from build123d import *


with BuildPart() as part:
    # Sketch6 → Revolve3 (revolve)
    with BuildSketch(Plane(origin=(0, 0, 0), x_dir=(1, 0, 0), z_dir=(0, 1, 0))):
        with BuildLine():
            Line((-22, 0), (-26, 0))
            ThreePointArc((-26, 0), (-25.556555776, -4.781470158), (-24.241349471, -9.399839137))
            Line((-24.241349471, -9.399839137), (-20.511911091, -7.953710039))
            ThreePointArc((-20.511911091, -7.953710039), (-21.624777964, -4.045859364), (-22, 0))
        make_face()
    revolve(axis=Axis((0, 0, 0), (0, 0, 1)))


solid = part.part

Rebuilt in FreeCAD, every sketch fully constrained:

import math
import FreeCAD as App
import Part
import Sketcher

V = App.Vector
Q = App.Units.Quantity

doc = App.newDocument("Part")
params = doc.addObject("Spreadsheet::Sheet", "Params")
for row, (alias, value) in enumerate([
    ("sketch1_radius", "26 mm"),
    ("sketch1_radius2", "22 mm"),
    ("revolution_angle", "360 deg"),
], start=1):
    params.set(f"A{row}", alias)
    params.set(f"B{row}", "=" + value)
    params.setAlias(f"B{row}", alias)

body = doc.addObject("PartDesign::Body", "Body")

# Sketch on XZ plane
sketch1 = body.newObject("Sketcher::SketchObject", "Sketch")
sketch1.AttachmentSupport = (doc.getObject("XZ_Plane"), [""])
sketch1.MapMode = "FlatFace"
sketch1.addGeometry(Part.LineSegment(V(-22, 0, 0), V(-26, 0, 0)), False)
sketch1.addGeometry(Part.ArcOfCircle(Part.Circle(V(0, 0, 0), V(0, 0, 1), 26), math.radians(159), math.radians(180)), False)
sketch1.addGeometry(Part.LineSegment(V(-24.2, 9.4, 0), V(-20.5, 8, 0)), False)
sketch1.addGeometry(Part.ArcOfCircle(Part.Circle(V(0, 0, 0), V(0, 0, 1), 22), math.radians(159), math.radians(180)), False)
sketch1.addConstraint(Sketcher.Constraint("Coincident", 0, 2, 1, 2))
sketch1.addConstraint(Sketcher.Constraint("Coincident", 1, 1, 2, 1))
sketch1.addConstraint(Sketcher.Constraint("Coincident", 2, 2, 3, 1))
sketch1.addConstraint(Sketcher.Constraint("Coincident", 3, 2, 0, 1))
sketch1.addConstraint(Sketcher.Constraint("Horizontal", 0))
sketch1.addConstraint(Sketcher.Constraint("Coincident", 1, 3, -1, 1))
sketch1.addConstraint(Sketcher.Constraint("Coincident", 3, 3, -1, 1))
sketch1.addConstraint(Sketcher.Constraint("PointOnObject", 0, 2, -1))
sketch1.addConstraint(Sketcher.Constraint("Radius", 1, Q("26 mm")))
sketch1.addConstraint(Sketcher.Constraint("Radius", 3, Q("22 mm")))
sketch1.addConstraint(Sketcher.Constraint("DistanceX", 1, 1, -1, 1, Q("24.241349 mm")))
sketch1.addConstraint(Sketcher.Constraint("DistanceX", 2, 2, -1, 1, Q("20.511911 mm")))
sketch1.setExpression("Constraints[8]", "Params.sketch1_radius")
sketch1.setExpression("Constraints[9]", "Params.sketch1_radius2")
revolution = body.newObject("PartDesign::Revolution", "Revolution")
revolution.Profile = sketch1
revolution.ReferenceAxis = (sketch1, ["V_Axis"])
revolution.setExpression("Angle", "Params.revolution_angle")

doc.recompute()
